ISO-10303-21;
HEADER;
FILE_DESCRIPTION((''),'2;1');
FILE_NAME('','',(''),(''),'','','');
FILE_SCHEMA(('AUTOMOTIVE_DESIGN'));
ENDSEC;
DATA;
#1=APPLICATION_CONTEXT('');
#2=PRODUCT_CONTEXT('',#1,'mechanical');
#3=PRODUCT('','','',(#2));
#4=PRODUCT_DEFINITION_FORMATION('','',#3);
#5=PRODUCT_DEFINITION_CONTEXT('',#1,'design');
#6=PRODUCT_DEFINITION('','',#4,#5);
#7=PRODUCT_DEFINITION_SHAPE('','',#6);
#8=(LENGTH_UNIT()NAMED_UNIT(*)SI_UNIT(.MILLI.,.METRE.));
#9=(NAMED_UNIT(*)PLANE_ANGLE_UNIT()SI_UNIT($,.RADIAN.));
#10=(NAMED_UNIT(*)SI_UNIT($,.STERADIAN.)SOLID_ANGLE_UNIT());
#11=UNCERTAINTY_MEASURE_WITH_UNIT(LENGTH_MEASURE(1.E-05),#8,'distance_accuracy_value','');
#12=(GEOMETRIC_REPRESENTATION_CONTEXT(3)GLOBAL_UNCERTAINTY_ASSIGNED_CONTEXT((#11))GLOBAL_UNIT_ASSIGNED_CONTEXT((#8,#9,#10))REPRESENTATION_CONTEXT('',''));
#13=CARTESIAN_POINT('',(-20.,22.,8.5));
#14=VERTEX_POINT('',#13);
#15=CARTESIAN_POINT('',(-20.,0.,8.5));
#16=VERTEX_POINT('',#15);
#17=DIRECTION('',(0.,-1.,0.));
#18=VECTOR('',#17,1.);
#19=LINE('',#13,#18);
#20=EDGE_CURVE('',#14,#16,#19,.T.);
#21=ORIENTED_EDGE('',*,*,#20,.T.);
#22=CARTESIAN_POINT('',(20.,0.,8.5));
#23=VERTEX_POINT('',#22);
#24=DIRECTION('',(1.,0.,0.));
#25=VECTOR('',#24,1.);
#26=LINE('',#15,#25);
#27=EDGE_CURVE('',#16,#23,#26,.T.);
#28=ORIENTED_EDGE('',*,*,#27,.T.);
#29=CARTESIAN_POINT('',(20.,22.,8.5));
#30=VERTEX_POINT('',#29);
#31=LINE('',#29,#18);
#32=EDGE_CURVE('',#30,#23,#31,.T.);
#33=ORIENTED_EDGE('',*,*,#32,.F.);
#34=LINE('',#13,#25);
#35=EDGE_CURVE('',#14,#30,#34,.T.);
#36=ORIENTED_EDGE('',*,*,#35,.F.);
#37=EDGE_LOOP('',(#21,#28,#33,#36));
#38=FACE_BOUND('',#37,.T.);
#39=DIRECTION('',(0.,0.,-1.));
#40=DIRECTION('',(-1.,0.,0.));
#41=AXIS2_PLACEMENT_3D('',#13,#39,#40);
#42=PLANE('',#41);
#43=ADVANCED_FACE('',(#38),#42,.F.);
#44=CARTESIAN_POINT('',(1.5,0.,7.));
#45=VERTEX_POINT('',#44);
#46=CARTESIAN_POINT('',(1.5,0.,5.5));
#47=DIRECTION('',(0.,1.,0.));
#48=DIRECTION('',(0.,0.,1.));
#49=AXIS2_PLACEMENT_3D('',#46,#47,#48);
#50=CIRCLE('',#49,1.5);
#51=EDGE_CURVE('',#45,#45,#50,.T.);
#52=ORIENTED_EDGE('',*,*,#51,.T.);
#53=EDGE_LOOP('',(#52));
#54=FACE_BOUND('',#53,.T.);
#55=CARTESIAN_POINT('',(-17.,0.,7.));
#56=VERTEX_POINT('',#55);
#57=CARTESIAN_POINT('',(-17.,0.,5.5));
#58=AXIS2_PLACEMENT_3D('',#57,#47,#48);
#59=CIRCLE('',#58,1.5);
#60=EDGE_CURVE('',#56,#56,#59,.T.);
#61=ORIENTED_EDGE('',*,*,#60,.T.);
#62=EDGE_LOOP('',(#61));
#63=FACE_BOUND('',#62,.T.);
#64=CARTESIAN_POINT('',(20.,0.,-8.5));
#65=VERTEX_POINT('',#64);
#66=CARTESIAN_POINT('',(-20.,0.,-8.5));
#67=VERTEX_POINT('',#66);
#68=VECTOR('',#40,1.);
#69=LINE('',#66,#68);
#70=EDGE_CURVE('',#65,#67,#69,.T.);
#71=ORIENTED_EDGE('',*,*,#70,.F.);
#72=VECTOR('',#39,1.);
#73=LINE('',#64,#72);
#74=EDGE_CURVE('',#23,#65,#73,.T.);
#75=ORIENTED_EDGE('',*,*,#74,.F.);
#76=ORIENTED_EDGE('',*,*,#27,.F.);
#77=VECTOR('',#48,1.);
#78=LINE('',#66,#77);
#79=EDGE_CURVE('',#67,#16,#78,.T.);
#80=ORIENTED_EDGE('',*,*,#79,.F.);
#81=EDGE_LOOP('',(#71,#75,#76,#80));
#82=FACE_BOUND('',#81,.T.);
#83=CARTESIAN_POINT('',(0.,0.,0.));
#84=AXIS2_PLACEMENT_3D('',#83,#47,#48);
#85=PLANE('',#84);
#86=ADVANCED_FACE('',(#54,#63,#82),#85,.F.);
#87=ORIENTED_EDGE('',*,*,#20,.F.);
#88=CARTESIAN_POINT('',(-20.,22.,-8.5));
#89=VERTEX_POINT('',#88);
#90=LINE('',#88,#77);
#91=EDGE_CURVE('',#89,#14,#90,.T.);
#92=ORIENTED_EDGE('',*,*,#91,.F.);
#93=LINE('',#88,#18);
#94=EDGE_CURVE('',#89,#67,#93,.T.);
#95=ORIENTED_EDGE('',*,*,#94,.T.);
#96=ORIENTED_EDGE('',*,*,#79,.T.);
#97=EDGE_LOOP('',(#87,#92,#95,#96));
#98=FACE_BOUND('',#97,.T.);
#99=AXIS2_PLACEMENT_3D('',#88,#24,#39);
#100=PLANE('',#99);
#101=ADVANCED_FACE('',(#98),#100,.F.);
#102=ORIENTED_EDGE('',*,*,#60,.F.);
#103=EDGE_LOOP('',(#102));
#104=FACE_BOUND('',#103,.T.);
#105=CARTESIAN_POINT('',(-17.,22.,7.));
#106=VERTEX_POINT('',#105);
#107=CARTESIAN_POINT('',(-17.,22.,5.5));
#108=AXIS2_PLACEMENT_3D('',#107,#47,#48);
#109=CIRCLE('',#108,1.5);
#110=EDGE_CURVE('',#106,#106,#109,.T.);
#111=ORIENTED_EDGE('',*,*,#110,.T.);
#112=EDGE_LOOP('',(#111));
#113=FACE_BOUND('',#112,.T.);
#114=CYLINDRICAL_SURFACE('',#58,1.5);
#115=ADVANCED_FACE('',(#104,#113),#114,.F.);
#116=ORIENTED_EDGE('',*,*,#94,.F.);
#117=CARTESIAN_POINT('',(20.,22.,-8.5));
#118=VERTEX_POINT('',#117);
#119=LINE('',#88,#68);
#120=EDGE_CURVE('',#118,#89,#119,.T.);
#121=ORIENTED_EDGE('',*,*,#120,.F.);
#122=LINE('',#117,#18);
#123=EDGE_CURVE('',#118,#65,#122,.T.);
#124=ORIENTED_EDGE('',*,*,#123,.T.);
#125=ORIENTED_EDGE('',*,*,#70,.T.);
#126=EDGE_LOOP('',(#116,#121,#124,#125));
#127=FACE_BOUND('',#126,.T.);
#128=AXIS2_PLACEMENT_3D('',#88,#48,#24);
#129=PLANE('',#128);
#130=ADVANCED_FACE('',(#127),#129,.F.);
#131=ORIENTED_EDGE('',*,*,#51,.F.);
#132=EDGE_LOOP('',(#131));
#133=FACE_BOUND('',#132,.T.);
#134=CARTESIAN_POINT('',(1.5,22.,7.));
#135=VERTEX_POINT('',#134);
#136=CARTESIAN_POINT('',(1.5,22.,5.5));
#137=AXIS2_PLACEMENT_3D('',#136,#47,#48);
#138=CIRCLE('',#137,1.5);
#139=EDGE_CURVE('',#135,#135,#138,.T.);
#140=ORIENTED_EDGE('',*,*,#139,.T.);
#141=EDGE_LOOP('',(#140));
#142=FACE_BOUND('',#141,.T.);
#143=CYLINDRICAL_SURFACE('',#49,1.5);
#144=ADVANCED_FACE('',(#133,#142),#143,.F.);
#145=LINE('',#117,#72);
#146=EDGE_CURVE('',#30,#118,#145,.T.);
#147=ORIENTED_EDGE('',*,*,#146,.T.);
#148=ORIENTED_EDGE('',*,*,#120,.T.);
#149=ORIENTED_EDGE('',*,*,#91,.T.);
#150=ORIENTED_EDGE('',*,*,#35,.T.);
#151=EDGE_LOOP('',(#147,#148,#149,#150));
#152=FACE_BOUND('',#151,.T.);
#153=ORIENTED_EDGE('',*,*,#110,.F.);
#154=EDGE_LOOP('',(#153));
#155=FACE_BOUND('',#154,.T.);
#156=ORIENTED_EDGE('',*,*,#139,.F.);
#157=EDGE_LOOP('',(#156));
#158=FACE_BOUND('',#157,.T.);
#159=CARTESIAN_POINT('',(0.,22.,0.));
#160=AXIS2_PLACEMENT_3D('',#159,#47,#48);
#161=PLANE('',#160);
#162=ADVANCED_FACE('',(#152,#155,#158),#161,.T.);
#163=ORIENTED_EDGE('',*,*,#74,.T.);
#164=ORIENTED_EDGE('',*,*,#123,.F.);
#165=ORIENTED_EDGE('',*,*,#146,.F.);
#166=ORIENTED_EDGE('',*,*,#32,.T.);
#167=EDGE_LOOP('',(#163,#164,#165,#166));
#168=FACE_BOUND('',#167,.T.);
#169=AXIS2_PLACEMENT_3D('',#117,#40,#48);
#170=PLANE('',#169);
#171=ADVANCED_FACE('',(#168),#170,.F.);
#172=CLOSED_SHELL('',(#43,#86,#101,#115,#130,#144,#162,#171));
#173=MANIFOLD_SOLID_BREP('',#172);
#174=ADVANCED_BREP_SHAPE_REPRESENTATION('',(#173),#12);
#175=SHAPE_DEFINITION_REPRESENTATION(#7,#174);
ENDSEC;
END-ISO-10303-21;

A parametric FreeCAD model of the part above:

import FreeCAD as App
import Part
import Sketcher

doc = App.newDocument("Part")
body = doc.addObject("PartDesign::Body", "Body")

# Sketch on XZ plane
sketch1 = body.newObject("Sketcher::SketchObject", "Sketch")
sketch1.AttachmentSupport = (doc.getObject("XZ_Plane"), [""])
sketch1.MapMode = "FlatFace"
sketch1.addGeometry([
    Part.LineSegment(App.Vector(-20, -8, 0), App.Vector(-20, 8, 0)),
    Part.LineSegment(App.Vector(-20, 8, 0), App.Vector(20, 8, 0)),
    Part.LineSegment(App.Vector(20, 8, 0), App.Vector(20, -8, 0)),
    Part.LineSegment(App.Vector(20, -8, 0), App.Vector(-20, -8, 0)),
], False)
sketch1.addConstraint([
    Sketcher.Constraint("Coincident", 0, 2, 1, 1),
    Sketcher.Constraint("Coincident", 1, 2, 2, 1),
    Sketcher.Constraint("Coincident", 2, 2, 3, 1),
    Sketcher.Constraint("Coincident", 3, 2, 0, 1),
    Sketcher.Constraint("Vertical", 0),
    Sketcher.Constraint("Horizontal", 1),
    Sketcher.Constraint("Vertical", 2),
    Sketcher.Constraint("Horizontal", 3),
    Sketcher.Constraint("Symmetric", 0, 2, 2, 2, -1, 1),
    Sketcher.Constraint("DistanceX", 1, 1, 1, 2, 40.0),
    Sketcher.Constraint("DistanceY", 0, 1, 0, 2, 17.0),
])
pad1 = body.newObject("PartDesign::Pad", "Pad")
pad1.Profile = sketch1
pad1.Length = 22
pad1.Reversed = True

# Sketch on XZ plane
sketch2 = body.newObject("Sketcher::SketchObject", "Sketch001")
sketch2.AttachmentSupport = (doc.getObject("XZ_Plane"), [""])
sketch2.MapMode = "FlatFace"
sketch2.AttachmentOffset = App.Placement(App.Vector(0, 0, -22), App.Rotation())
sketch2.addGeometry(Part.Circle(App.Vector(-17, 5.5, 0), App.Vector(0, 0, 1), 1.5), False)
sketch2.addConstraint([
    Sketcher.Constraint("Diameter", 0, 3.0),
    Sketcher.Constraint("DistanceX", 0, 3, -1, 1, 17.0),
    Sketcher.Constraint("DistanceY", -1, 1, 0, 3, 5.5),
])
pocket1 = body.newObject("PartDesign::Pocket", "Pocket")
pocket1.Profile = sketch2
pocket1.Length = 22
pocket1.Reversed = True

# Sketch on XZ plane
sketch3 = body.newObject("Sketcher::SketchObject", "Sketch002")
sketch3.AttachmentSupport = (doc.getObject("XZ_Plane"), [""])
sketch3.MapMode = "FlatFace"
sketch3.AttachmentOffset = App.Placement(App.Vector(0, 0, -22), App.Rotation())
sketch3.addGeometry(Part.Circle(App.Vector(1.5, 5.5, 0), App.Vector(0, 0, 1), 1.5), False)
sketch3.addConstraint([
    Sketcher.Constraint("Diameter", 0, 3.0),
    Sketcher.Constraint("DistanceX", -1, 1, 0, 3, 1.5),
    Sketcher.Constraint("DistanceY", -1, 1, 0, 3, 5.5),
])
pocket2 = body.newObject("PartDesign::Pocket", "Pocket001")
pocket2.Profile = sketch3
pocket2.Length = 22
pocket2.Reversed = True

doc.recompute()
